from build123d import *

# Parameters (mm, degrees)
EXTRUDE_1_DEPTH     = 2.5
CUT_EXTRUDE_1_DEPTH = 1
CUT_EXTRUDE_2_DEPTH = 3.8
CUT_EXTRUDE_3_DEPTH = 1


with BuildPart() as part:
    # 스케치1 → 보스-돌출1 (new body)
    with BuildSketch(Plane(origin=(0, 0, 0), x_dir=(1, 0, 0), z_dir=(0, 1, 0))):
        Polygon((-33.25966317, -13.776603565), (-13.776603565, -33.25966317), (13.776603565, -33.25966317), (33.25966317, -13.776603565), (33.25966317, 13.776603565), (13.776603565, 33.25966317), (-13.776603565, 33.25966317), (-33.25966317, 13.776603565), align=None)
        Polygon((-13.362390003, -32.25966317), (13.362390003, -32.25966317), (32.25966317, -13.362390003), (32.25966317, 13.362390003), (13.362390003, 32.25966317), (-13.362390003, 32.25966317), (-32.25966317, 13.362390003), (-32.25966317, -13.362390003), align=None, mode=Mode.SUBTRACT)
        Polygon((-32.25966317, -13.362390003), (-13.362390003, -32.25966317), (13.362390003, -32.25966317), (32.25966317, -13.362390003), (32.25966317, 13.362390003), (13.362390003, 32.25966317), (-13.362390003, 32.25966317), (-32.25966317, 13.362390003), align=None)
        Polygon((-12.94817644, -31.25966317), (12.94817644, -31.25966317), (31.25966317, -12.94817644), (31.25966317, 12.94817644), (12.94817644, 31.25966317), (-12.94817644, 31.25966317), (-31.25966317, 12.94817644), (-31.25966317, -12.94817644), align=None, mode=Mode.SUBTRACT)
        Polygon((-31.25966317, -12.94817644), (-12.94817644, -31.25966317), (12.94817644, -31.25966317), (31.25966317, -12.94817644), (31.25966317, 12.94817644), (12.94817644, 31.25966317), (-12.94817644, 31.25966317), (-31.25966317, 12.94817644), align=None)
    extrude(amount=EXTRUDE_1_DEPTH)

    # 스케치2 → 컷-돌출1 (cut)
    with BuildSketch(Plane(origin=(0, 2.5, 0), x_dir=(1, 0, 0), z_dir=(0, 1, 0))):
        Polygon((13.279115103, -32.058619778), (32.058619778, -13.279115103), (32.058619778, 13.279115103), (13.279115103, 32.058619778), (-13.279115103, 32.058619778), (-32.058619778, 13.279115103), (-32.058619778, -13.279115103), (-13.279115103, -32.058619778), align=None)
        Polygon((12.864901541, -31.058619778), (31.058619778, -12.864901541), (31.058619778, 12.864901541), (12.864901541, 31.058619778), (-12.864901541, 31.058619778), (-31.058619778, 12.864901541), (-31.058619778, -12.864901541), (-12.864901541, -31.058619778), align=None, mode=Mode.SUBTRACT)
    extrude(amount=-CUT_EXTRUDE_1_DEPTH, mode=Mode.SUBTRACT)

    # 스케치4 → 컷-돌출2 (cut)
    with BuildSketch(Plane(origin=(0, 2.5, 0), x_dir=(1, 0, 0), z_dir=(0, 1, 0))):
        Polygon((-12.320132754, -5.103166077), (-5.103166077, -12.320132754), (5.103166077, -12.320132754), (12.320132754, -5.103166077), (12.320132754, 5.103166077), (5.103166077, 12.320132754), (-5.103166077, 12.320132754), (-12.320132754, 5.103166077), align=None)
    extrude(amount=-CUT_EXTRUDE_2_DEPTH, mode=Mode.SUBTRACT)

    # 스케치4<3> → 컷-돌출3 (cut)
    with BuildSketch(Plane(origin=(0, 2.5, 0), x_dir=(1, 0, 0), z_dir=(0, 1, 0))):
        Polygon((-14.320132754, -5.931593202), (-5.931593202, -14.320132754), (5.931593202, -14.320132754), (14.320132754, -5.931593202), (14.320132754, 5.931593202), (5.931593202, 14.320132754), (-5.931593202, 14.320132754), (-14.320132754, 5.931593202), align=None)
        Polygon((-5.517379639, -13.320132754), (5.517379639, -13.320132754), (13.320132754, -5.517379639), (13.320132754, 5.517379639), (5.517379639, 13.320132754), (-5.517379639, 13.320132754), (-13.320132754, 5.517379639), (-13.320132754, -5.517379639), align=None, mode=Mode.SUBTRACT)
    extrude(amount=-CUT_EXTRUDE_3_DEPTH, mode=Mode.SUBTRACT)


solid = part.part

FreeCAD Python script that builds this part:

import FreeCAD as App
import Part
import Sketcher


def add_polygon(sketch, points):
    """Adds a closed chain of lines whose ends are joined by coincident constraints."""
    first, n = sketch.GeometryCount, len(points)
    for a, b in zip(points, points[1:] + points[:1]):
        sketch.addGeometry(Part.LineSegment(App.Vector(*a, 0), App.Vector(*b, 0)), False)
    for i in range(n):
        sketch.addConstraint(Sketcher.Constraint("Coincident", first + i, 2, first + (i + 1) % n, 1))

doc = App.newDocument("Part")
body = doc.addObject("PartDesign::Body", "Body")

sketch1 = body.newObject("Sketcher::SketchObject", "Sketch")
sketch1.AttachmentSupport = (doc.getObject("XZ_Plane"), [""])
sketch1.MapMode = "FlatFace"
add_polygon(sketch1, [(-33, 14), (-14, 33), (14, 33), (33, 14), (33, -14), (14, -33), (-14, -33), (-33, -14)])
sketch1.addConstraint([
    Sketcher.Constraint("Horizontal", 1),
    Sketcher.Constraint("Vertical", 3),
    Sketcher.Constraint("Horizontal", 5),
    Sketcher.Constraint("Vertical", 7),
    Sketcher.Constraint("Symmetric", 0, 2, 4, 2, -1, 1),
    Sketcher.Constraint("Symmetric", 2, 2, 6, 2, -1, 1),
    Sketcher.Constraint("Perpendicular", 0, 2),
    Sketcher.Constraint("Perpendicular", 2, 4),
    Sketcher.Constraint("Perpendicular", 4, 6),
    Sketcher.Constraint("Horizontal", 3, 2, 6, 2),
    Sketcher.Constraint("Vertical", 1, 2, 4, 2),
    Sketcher.Constraint("Equal", 5, 3),
    Sketcher.Constraint("DistanceX", 1, 1, 1, 2, 27.553207),
    Sketcher.Constraint("DistanceX", 1, 2, 2, 2, 19.48306),
])
pad1 = body.newObject("PartDesign::Pad", "Pad")
pad1.Profile = sketch1
pad1.Length = 2.5
pad1.Reversed = True

sketch2 = body.newObject("Sketcher::SketchObject", "Sketch001")
sketch2.AttachmentSupport = (doc.getObject("XZ_Plane"), [""])
sketch2.MapMode = "FlatFace"
sketch2.AttachmentOffset = App.Placement(App.Vector(0, 0, -2.5), App.Rotation())
add_polygon(sketch2, [(13, 32), (32, 13), (32, -13), (13, -32), (-13, -32), (-32, -13), (-32, 13), (-13, 32)])
add_polygon(sketch2, [(31, 13), (13, 31), (-13, 31), (-31, 13), (-31, -13), (-13, -31), (13, -31), (31, -13)])
sketch2.addConstraint([
    Sketcher.Constraint("Vertical", 1),
    Sketcher.Constraint("Horizontal", 3),
    Sketcher.Constraint("Vertical", 5),
    Sketcher.Constraint("Horizontal", 7),
    Sketcher.Constraint("Horizontal", 9),
    Sketcher.Constraint("Vertical", 11),
    Sketcher.Constraint("Horizontal", 13),
    Sketcher.Constraint("Vertical", 15),
    Sketcher.Constraint("Symmetric", 0, 2, 4, 2, -1, 1),
    Sketcher.Constraint("Symmetric", 2, 2, 6, 2, -1, 1),
    Sketcher.Constraint("Symmetric", 8, 2, 12, 2, -1, 1),
    Sketcher.Constraint("Symmetric", 10, 2, 14, 2, -1, 1),
    Sketcher.Constraint("Perpendicular", 0, 2),
    Sketcher.Constraint("Perpendicular", 2, 4),
    Sketcher.Constraint("Perpendicular", 4, 6),
    Sketcher.Constraint("Perpendicular", 6, 8),
    Sketcher.Constraint("Perpendicular", 8, 10),
    Sketcher.Constraint("Perpendicular", 10, 12),
    Sketcher.Constraint("Perpendicular", 12, 14),
    Sketcher.Constraint("Horizontal", 1, 2, 4, 2),
    Sketcher.Constraint("Horizontal", 11, 2, 14, 2),
    Sketcher.Constraint("Vertical", 3, 2, 6, 2),
    Sketcher.Constraint("Equal", 7, 1),
    Sketcher.Constraint("Equal", 13, 11),
    Sketcher.Constraint("DistanceY", 8, 2, 7, 2, 1.0),
    Sketcher.Constraint("DistanceX", 3, 2, 3, 1, 26.55823),
    Sketcher.Constraint("DistanceX", -1, 1, 8, 2, 12.864902),
    Sketcher.Constraint("Distance", 0, 26.55823),
])
pocket1 = body.newObject("PartDesign::Pocket", "Pocket")
pocket1.Profile = sketch2
pocket1.Length = 1
pocket1.Reversed = True

sketch3 = body.newObject("Sketcher::SketchObject", "Sketch002")
sketch3.AttachmentSupport = (doc.getObject("XZ_Plane"), [""])
sketch3.MapMode = "FlatFace"
sketch3.AttachmentOffset = App.Placement(App.Vector(0, 0, -2.5), App.Rotation())
add_polygon(sketch3, [(-12, 5), (-5, 12), (5, 12), (12, 5), (12, -5), (5, -12), (-5, -12), (-12, -5)])
sketch3.addConstraint([
    Sketcher.Constraint("Horizontal", 1),
    Sketcher.Constraint("Vertical", 3),
    Sketcher.Constraint("Horizontal", 5),
    Sketcher.Constraint("Vertical", 7),
    Sketcher.Constraint("Symmetric", 0, 2, 4, 2, -1, 1),
    Sketcher.Constraint("Symmetric", 2, 2, 6, 2, -1, 1),
    Sketcher.Constraint("Perpendicular", 0, 2),
    Sketcher.Constraint("Perpendicular", 2, 4),
    Sketcher.Constraint("Perpendicular", 4, 6),
    Sketcher.Constraint("Horizontal", 3, 2, 6, 2),
    Sketcher.Constraint("Vertical", 1, 2, 4, 2),
    Sketcher.Constraint("Equal", 5, 3),
    Sketcher.Constraint("DistanceX", 0, 2, 2, 2, 17.423299),
    Sketcher.Constraint("DistanceX", 1, 1, 1, 2, 10.206332),
])
pocket2 = body.newObject("PartDesign::Pocket", "Pocket001")
pocket2.Profile = sketch3
pocket2.Length = 3.8
pocket2.Reversed = True

sketch4 = body.newObject("Sketcher::SketchObject", "Sketch003")
sketch4.AttachmentSupport = (doc.getObject("XZ_Plane"), [""])
sketch4.MapMode = "FlatFace"
sketch4.AttachmentOffset = App.Placement(App.Vector(0, 0, -2.5), App.Rotation())
add_polygon(sketch4, [(-14, 6), (-6, 14), (6, 14), (14, 6), (14, -6), (6, -14), (-6, -14), (-14, -6)])
add_polygon(sketch4, [(6, 13), (-6, 13), (-13, 6), (-13, -6), (-6, -13), (6, -13), (13, -6), (13, 6)])
sketch4.addConstraint([
    Sketcher.Constraint("Horizontal", 1),
    Sketcher.Constraint("Vertical", 3),
    Sketcher.Constraint("Horizontal", 5),
    Sketcher.Constraint("Vertical", 7),
    Sketcher.Constraint("Horizontal", 8),
    Sketcher.Constraint("Vertical", 10),
    Sketcher.Constraint("Horizontal", 12),
    Sketcher.Constraint("Vertical", 14),
    Sketcher.Constraint("Symmetric", 0, 2, 4, 2, -1, 1),
    Sketcher.Constraint("Symmetric", 2, 2, 6, 2, -1, 1),
    Sketcher.Constraint("Symmetric", 8, 2, 12, 2, -1, 1),
    Sketcher.Constraint("Symmetric", 9, 2, 13, 2, -1, 1),
    Sketcher.Constraint("Perpendicular", 0, 2),
    Sketcher.Constraint("Perpendicular", 2, 4),
    Sketcher.Constraint("Perpendicular", 4, 6),
    Sketcher.Constraint("Perpendicular", 6, 9),
    Sketcher.Constraint("Perpendicular", 9, 11),
    Sketcher.Constraint("Perpendicular", 13, 15),
    Sketcher.Constraint("Horizontal", 3, 2, 6, 2),
    Sketcher.Constraint("Horizontal", 10, 2, 13, 2),
    Sketcher.Constraint("Horizontal", 9, 2, 14, 2),
    Sketcher.Constraint("Vertical", 1, 2, 4, 2),
    Sketcher.Constraint("Equal", 5, 3),
    Sketcher.Constraint("Equal", 12, 10),
    Sketcher.Constraint("DistanceY", 8, 2, 0, 2, 1.0),
    Sketcher.Constraint("DistanceX", 8, 2, 8, 1, 11.034759),
    Sketcher.Constraint("Distance", 9, 11.034759),
    Sketcher.Constraint("DistanceX", 1, 1, 1, 2, 11.863186),
])
pocket3 = body.newObject("PartDesign::Pocket", "Pocket002")
pocket3.Profile = sketch4
pocket3.Length = 1
pocket3.Reversed = True

doc.recompute()
